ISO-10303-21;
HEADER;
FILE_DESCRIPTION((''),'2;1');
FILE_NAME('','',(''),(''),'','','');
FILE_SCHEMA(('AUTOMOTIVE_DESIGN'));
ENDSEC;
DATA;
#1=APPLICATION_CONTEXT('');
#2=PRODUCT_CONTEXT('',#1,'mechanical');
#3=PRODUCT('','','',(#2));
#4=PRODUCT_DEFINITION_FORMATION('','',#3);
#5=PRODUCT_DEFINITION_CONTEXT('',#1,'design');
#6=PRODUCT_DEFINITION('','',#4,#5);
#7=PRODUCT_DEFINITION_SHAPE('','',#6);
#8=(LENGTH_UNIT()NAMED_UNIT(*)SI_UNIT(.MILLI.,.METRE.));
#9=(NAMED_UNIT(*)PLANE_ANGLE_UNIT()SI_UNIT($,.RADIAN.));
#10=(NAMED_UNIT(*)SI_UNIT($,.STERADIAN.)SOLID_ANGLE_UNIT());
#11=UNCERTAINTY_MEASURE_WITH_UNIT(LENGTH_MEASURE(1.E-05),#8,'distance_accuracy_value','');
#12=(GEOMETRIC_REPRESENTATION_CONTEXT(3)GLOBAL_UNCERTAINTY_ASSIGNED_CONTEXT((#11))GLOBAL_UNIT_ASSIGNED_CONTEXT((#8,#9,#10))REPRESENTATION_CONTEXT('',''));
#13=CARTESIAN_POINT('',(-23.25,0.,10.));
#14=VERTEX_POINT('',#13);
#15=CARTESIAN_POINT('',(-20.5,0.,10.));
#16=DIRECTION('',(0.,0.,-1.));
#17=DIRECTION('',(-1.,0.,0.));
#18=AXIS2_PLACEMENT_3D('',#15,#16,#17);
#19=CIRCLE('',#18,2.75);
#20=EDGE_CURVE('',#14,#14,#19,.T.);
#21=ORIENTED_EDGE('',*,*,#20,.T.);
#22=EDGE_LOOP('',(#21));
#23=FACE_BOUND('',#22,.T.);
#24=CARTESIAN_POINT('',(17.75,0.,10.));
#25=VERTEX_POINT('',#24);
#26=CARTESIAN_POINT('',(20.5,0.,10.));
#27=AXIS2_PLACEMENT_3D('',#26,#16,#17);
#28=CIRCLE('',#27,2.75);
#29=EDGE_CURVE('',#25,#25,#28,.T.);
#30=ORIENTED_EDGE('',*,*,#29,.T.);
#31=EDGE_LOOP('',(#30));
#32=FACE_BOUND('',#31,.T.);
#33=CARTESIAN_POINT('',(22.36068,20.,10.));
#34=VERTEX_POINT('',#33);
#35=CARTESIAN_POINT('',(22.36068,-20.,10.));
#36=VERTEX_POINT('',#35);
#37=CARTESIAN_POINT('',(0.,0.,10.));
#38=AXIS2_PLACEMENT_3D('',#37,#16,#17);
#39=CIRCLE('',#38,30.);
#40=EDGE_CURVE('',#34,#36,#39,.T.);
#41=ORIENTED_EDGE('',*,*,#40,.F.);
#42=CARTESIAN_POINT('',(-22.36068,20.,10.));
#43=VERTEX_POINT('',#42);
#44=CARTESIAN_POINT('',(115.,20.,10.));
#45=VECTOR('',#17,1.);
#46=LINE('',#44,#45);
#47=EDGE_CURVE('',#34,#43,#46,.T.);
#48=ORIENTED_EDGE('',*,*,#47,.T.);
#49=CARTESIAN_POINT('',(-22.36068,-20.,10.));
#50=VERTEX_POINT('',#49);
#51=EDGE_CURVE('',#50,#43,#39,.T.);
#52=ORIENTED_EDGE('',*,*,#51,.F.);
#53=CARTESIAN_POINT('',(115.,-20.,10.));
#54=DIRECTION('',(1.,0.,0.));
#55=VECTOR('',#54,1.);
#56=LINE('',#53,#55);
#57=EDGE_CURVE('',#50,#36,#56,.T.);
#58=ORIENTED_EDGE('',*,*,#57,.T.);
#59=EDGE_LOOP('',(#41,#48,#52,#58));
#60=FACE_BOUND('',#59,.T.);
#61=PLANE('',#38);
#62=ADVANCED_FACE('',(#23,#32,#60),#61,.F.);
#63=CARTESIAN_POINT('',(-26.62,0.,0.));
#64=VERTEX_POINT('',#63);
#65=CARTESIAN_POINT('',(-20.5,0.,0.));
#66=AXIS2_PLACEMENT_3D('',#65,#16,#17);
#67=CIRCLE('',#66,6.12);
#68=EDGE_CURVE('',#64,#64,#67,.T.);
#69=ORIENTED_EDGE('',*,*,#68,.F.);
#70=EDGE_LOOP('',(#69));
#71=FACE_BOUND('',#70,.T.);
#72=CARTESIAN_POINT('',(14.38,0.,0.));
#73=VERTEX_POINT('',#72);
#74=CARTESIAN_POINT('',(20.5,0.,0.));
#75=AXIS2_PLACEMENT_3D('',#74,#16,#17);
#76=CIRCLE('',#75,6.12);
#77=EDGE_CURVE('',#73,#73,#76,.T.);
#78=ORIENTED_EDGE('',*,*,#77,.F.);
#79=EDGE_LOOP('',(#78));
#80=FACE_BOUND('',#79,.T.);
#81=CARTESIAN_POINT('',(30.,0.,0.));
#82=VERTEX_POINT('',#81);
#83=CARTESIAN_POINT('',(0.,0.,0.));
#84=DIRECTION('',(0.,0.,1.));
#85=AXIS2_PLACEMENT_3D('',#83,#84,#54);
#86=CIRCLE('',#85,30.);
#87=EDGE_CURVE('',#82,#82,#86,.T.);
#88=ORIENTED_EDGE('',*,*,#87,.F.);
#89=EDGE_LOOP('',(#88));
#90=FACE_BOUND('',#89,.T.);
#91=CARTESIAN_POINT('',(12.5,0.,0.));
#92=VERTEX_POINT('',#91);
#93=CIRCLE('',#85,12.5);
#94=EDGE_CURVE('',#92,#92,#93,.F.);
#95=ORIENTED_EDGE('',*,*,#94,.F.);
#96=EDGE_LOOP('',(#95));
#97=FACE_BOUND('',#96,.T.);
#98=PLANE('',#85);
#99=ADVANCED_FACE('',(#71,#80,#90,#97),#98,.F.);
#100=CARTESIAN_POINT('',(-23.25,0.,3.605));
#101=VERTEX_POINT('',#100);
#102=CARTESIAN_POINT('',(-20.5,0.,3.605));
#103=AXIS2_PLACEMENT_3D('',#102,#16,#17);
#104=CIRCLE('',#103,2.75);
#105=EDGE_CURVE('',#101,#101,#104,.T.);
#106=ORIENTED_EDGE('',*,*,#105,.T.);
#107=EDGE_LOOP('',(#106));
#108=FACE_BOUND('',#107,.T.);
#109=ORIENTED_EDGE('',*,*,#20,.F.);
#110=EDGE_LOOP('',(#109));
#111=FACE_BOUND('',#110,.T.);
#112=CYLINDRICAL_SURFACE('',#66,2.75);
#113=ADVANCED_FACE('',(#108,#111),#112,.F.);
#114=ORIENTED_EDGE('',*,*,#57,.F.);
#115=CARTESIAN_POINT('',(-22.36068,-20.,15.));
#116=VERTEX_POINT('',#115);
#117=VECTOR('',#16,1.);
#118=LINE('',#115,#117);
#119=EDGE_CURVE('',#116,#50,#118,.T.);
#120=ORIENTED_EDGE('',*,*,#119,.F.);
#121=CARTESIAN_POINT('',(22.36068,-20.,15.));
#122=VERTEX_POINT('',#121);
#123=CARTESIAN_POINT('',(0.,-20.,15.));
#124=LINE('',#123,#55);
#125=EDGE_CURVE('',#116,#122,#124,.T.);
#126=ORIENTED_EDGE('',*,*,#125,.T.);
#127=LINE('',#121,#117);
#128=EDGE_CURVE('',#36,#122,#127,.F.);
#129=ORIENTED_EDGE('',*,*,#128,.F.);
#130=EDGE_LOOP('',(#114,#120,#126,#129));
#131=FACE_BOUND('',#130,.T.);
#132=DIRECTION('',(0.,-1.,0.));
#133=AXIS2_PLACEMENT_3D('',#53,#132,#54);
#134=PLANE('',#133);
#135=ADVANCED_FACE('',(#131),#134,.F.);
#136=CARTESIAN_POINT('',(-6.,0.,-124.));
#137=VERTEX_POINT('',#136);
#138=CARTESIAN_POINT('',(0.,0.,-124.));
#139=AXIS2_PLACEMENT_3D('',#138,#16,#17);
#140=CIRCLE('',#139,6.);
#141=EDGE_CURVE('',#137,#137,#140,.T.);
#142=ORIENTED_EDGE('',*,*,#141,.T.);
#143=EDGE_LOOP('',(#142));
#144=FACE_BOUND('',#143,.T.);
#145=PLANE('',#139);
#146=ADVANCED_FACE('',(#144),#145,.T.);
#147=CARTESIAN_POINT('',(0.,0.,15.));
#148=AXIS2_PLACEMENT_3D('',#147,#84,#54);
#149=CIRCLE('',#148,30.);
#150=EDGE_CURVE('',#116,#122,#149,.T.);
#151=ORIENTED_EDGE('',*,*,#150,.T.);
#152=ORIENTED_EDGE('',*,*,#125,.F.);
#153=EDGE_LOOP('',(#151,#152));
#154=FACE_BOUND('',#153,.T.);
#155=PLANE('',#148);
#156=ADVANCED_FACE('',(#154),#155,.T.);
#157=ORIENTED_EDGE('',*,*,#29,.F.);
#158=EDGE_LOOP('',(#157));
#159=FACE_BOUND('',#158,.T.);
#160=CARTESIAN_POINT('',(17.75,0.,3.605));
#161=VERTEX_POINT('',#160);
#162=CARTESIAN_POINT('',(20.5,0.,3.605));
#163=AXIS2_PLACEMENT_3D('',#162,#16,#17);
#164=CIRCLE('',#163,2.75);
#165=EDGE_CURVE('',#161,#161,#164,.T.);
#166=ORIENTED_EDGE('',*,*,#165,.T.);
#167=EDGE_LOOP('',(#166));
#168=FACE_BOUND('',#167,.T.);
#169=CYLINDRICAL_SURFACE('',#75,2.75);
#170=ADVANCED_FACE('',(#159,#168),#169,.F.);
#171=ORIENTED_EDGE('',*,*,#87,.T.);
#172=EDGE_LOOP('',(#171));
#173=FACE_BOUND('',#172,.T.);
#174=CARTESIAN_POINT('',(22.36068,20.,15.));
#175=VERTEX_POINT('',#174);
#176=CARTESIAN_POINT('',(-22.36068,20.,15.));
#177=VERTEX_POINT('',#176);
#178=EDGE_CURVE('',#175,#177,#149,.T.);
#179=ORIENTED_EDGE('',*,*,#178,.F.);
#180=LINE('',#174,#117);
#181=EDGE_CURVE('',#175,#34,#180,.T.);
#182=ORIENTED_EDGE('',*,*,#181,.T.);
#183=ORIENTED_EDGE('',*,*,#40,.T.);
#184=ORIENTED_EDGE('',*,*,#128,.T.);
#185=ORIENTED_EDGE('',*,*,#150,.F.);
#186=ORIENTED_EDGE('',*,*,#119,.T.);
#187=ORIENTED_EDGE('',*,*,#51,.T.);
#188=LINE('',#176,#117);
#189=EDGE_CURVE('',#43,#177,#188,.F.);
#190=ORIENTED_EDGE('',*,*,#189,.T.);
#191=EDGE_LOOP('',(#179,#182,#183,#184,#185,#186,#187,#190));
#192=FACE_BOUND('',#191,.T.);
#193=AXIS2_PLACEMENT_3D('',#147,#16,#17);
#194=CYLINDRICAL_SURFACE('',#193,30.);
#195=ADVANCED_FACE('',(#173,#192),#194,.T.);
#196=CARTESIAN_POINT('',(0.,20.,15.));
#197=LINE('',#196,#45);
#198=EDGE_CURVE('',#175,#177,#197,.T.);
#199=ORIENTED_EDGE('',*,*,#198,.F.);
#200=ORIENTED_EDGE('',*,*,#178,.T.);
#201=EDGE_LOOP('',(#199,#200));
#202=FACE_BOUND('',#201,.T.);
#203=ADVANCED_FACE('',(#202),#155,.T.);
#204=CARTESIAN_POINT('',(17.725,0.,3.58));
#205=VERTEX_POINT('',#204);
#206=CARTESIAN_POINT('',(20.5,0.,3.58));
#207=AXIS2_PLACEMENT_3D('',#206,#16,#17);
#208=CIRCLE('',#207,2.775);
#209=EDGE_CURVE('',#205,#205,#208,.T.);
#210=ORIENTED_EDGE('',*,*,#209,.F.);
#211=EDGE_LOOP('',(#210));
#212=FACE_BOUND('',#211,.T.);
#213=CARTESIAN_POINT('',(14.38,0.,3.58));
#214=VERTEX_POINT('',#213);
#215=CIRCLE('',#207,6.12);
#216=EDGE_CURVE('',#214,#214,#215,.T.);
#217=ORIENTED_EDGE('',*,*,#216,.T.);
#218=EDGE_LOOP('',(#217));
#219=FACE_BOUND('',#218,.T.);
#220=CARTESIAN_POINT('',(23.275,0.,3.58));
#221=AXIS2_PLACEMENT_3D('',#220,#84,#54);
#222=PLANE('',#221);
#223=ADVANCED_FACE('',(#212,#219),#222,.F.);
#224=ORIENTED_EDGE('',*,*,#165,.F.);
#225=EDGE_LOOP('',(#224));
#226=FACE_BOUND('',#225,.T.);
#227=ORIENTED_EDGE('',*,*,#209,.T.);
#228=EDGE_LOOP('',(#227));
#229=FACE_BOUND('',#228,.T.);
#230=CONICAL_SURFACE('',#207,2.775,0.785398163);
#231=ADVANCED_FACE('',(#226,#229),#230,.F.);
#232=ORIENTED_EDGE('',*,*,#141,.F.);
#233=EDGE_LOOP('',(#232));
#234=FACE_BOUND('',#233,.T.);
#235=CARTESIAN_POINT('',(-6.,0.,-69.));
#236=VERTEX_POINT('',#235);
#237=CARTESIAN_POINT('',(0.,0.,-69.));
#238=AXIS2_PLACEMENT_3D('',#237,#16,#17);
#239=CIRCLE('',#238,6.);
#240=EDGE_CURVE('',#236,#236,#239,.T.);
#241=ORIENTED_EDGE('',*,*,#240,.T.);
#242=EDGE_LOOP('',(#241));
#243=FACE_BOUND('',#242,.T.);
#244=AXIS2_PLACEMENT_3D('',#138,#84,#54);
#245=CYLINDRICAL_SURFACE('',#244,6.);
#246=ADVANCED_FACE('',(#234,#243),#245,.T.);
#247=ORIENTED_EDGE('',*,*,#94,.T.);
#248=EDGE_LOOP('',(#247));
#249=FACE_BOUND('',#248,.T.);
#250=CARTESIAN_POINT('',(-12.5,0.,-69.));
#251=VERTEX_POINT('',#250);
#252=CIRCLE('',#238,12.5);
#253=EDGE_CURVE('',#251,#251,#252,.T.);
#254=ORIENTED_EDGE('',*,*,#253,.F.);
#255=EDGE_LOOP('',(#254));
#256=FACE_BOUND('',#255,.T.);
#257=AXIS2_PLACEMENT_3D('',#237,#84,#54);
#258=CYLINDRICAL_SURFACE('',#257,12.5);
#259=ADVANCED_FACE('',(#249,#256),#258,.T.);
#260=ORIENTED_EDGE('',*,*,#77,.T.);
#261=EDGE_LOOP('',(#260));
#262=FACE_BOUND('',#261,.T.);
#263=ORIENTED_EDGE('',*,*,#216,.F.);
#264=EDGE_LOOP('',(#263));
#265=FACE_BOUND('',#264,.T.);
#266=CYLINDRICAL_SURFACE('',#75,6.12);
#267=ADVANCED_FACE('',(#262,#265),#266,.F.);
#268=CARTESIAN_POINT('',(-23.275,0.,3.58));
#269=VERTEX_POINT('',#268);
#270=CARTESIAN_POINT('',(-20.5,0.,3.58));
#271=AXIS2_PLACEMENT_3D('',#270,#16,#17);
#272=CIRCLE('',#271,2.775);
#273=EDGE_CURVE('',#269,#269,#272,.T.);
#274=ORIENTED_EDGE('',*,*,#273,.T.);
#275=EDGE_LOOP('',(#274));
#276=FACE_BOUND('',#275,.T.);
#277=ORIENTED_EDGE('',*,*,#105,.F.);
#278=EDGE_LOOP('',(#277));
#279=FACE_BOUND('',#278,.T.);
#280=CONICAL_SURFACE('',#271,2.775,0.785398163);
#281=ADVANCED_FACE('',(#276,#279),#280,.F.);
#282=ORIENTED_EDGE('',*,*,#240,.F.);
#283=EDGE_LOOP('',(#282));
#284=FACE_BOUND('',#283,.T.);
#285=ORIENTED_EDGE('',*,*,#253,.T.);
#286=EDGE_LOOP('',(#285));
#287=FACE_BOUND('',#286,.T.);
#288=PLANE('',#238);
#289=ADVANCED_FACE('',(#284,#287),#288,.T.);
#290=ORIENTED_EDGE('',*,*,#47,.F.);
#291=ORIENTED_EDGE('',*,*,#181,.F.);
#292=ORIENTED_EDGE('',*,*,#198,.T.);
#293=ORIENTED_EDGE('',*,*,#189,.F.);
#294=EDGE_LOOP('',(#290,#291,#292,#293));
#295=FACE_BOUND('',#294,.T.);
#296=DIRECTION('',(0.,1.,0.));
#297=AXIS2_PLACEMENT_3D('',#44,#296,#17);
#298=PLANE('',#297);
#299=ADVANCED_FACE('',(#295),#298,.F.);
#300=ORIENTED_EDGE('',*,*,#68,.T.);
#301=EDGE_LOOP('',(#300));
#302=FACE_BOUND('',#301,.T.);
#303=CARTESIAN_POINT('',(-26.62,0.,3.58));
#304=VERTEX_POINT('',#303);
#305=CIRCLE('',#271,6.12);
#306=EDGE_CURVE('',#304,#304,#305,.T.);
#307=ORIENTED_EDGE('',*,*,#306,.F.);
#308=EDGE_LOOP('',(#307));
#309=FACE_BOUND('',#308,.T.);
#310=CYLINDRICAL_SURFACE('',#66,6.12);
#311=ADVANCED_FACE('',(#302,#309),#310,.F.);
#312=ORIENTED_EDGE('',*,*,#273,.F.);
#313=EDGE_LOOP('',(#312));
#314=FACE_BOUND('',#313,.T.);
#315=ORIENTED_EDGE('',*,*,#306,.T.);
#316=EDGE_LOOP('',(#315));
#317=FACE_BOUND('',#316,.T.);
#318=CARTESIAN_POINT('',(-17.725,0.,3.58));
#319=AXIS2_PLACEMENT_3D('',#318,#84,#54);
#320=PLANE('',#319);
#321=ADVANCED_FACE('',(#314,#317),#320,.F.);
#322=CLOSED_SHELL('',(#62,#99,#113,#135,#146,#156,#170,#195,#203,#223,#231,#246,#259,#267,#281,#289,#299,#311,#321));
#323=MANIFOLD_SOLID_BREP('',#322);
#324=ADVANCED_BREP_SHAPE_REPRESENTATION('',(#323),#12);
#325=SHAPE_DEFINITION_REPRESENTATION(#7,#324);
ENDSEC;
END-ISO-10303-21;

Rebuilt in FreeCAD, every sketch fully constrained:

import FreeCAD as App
import Part
import Sketcher
from FreeCAD import Vector
Q = App.Units.Quantity

doc = App.newDocument("Part")
body = doc.addObject("PartDesign::Body", "Body")

# Sketch on XY plane
sketch1 = body.newObject("Sketcher::SketchObject", "Sketch")
sketch1.AttachmentSupport = (doc.getObject("XY_Plane"), [""])
sketch1.MapMode = "FlatFace"
sketch1.addGeometry(Part.Circle(Vector(0, 0, 0), Vector(0, 0, 1), 30), False)
sketch1.addConstraint([
    Sketcher.Constraint("Coincident", 0, 3, -1, 1),
    Sketcher.Constraint("Diameter", 0, 60.0),
])
pad1 = body.newObject("PartDesign::Pad", "Pad")
pad1.Profile = sketch1
pad1.Length = 15

# Sketch on XY plane
sketch2 = body.newObject("Sketcher::SketchObject", "Sketch001")
sketch2.AttachmentSupport = (doc.getObject("XY_Plane"), [""])
sketch2.MapMode = "FlatFace"
sketch2.addGeometry(Part.Circle(Vector(0, 0, 0), Vector(0, 0, 1), 12.5), False)
sketch2.addConstraint([
    Sketcher.Constraint("Coincident", 0, 3, -1, 1),
    Sketcher.Constraint("Diameter", 0, 25.0),
])
pad2 = body.newObject("PartDesign::Pad", "Pad001")
pad2.Profile = sketch2
pad2.Length = 69
pad2.Reversed = True

# Sketch on XY plane
sketch3 = body.newObject("Sketcher::SketchObject", "Sketch002")
sketch3.AttachmentSupport = (doc.getObject("XY_Plane"), [""])
sketch3.MapMode = "FlatFace"
sketch3.AttachmentOffset = App.Placement(Vector(0, 0, 15), App.Rotation())
sketch3.addGeometry([
    Part.LineSegment(Vector(-115, 20, 0), Vector(-115, -20, 0)),
    Part.LineSegment(Vector(-115, -20, 0), Vector(115, -20, 0)),
    Part.LineSegment(Vector(115, -20, 0), Vector(115, 20, 0)),
    Part.LineSegment(Vector(115, 20, 0), Vector(-115, 20, 0)),
], False)
sketch3.addConstraint([
    Sketcher.Constraint("Coincident", 0, 2, 1, 1),
    Sketcher.Constraint("Coincident", 1, 2, 2, 1),
    Sketcher.Constraint("Coincident", 2, 2, 3, 1),
    Sketcher.Constraint("Coincident", 3, 2, 0, 1),
    Sketcher.Constraint("Vertical", 0),
    Sketcher.Constraint("Horizontal", 1),
    Sketcher.Constraint("Vertical", 2),
    Sketcher.Constraint("Horizontal", 3),
    Sketcher.Constraint("Symmetric", 0, 2, 2, 2, -1, 1),
    Sketcher.Constraint("DistanceX", 1, 1, 1, 2, 230.0),
    Sketcher.Constraint("DistanceY", 0, 2, 0, 1, 40.0),
])
pocket1 = body.newObject("PartDesign::Pocket", "Pocket")
pocket1.Profile = sketch3
pocket1.Length = 5

# Sketch on YZ plane
sketch4 = body.newObject("Sketcher::SketchObject", "Sketch003")
sketch4.AttachmentSupport = (doc.getObject("YZ_Plane"), [""])
sketch4.MapMode = "FlatFace"
sketch4.AttachmentOffset = App.Placement(Vector(0, 0, -20.5), App.Rotation())
sketch4.addGeometry([
    Part.LineSegment(Vector(0, 15, 0), Vector(0, 0, 0)),  # 0
    Part.LineSegment(Vector(0, 0, 0), Vector(6.12, 0, 0)),  # 1
    Part.LineSegment(Vector(6.12, 0, 0), Vector(6.12, 3.58, 0)),  # 2
    Part.LineSegment(Vector(6.12, 3.58, 0), Vector(2.775, 3.58, 0)),  # 3
    Part.LineSegment(Vector(2.775, 3.58, 0), Vector(2.75, 3.605, 0)),  # 4
    Part.LineSegment(Vector(2.75, 3.605, 0), Vector(2.75, 15, 0)),  # 5
    Part.LineSegment(Vector(2.75, 15, 0), Vector(0, 15, 0)),  # 6
], False)
sketch4.addConstraint([
    Sketcher.Constraint("Coincident", 0, 2, 1, 1),
    Sketcher.Constraint("Coincident", 1, 2, 2, 1),
    Sketcher.Constraint("Coincident", 2, 2, 3, 1),
    Sketcher.Constraint("Coincident", 3, 2, 4, 1),
    Sketcher.Constraint("Coincident", 4, 2, 5, 1),
    Sketcher.Constraint("Coincident", 5, 2, 6, 1),
    Sketcher.Constraint("Coincident", 6, 2, 0, 1),
    Sketcher.Constraint("Vertical", 0),
    Sketcher.Constraint("Horizontal", 1),
    Sketcher.Constraint("Vertical", 2),
    Sketcher.Constraint("Horizontal", 3),
    Sketcher.Constraint("Vertical", 5),
    Sketcher.Constraint("Horizontal", 6),
    Sketcher.Constraint("Coincident", 0, 2, -1, 1),
    Sketcher.Constraint("DistanceY", 0, 2, 0, 1, 15.0),
    Sketcher.Constraint("Angle", 4, Q("135 deg")),
    Sketcher.Constraint("DistanceX", 1, 1, 1, 2, 6.12),
    Sketcher.Constraint("DistanceX", 6, 2, 6, 1, 2.75),
    Sketcher.Constraint("DistanceY", 2, 1, 2, 2, 3.58),
    Sketcher.Constraint("DistanceX", 3, 2, 3, 1, 3.345),
])
groove = body.newObject("PartDesign::Groove", "Groove")
groove.Profile = sketch4
groove.ReferenceAxis = (sketch4, ["V_Axis"])
groove.Angle = 360
doc.recompute()

linearpattern = body.newObject("PartDesign::LinearPattern", "LinearPattern")
linearpattern.Originals = [groove]
linearpattern.Direction = (doc.getObject("X_Axis"), [""])
linearpattern.Mode = "offset"
linearpattern.Offset = 41
linearpattern.Occurrences = 2
body.Tip = linearpattern

# Sketch on XY plane
sketch5 = body.newObject("Sketcher::SketchObject", "Sketch004")
sketch5.AttachmentSupport = (doc.getObject("XY_Plane"), [""])
sketch5.MapMode = "FlatFace"
sketch5.AttachmentOffset = App.Placement(Vector(0, 0, -69), App.Rotation())
sketch5.addGeometry(Part.Circle(Vector(0, 0, 0), Vector(0, 0, 1), 6), False)
sketch5.addConstraint([
    Sketcher.Constraint("Coincident", 0, 3, -1, 1),
    Sketcher.Constraint("Diameter", 0, 12.0),
])
pad3 = body.newObject("PartDesign::Pad", "Pad002")
pad3.Profile = sketch5
pad3.Length = 55
pad3.Reversed = True

doc.recompute()
